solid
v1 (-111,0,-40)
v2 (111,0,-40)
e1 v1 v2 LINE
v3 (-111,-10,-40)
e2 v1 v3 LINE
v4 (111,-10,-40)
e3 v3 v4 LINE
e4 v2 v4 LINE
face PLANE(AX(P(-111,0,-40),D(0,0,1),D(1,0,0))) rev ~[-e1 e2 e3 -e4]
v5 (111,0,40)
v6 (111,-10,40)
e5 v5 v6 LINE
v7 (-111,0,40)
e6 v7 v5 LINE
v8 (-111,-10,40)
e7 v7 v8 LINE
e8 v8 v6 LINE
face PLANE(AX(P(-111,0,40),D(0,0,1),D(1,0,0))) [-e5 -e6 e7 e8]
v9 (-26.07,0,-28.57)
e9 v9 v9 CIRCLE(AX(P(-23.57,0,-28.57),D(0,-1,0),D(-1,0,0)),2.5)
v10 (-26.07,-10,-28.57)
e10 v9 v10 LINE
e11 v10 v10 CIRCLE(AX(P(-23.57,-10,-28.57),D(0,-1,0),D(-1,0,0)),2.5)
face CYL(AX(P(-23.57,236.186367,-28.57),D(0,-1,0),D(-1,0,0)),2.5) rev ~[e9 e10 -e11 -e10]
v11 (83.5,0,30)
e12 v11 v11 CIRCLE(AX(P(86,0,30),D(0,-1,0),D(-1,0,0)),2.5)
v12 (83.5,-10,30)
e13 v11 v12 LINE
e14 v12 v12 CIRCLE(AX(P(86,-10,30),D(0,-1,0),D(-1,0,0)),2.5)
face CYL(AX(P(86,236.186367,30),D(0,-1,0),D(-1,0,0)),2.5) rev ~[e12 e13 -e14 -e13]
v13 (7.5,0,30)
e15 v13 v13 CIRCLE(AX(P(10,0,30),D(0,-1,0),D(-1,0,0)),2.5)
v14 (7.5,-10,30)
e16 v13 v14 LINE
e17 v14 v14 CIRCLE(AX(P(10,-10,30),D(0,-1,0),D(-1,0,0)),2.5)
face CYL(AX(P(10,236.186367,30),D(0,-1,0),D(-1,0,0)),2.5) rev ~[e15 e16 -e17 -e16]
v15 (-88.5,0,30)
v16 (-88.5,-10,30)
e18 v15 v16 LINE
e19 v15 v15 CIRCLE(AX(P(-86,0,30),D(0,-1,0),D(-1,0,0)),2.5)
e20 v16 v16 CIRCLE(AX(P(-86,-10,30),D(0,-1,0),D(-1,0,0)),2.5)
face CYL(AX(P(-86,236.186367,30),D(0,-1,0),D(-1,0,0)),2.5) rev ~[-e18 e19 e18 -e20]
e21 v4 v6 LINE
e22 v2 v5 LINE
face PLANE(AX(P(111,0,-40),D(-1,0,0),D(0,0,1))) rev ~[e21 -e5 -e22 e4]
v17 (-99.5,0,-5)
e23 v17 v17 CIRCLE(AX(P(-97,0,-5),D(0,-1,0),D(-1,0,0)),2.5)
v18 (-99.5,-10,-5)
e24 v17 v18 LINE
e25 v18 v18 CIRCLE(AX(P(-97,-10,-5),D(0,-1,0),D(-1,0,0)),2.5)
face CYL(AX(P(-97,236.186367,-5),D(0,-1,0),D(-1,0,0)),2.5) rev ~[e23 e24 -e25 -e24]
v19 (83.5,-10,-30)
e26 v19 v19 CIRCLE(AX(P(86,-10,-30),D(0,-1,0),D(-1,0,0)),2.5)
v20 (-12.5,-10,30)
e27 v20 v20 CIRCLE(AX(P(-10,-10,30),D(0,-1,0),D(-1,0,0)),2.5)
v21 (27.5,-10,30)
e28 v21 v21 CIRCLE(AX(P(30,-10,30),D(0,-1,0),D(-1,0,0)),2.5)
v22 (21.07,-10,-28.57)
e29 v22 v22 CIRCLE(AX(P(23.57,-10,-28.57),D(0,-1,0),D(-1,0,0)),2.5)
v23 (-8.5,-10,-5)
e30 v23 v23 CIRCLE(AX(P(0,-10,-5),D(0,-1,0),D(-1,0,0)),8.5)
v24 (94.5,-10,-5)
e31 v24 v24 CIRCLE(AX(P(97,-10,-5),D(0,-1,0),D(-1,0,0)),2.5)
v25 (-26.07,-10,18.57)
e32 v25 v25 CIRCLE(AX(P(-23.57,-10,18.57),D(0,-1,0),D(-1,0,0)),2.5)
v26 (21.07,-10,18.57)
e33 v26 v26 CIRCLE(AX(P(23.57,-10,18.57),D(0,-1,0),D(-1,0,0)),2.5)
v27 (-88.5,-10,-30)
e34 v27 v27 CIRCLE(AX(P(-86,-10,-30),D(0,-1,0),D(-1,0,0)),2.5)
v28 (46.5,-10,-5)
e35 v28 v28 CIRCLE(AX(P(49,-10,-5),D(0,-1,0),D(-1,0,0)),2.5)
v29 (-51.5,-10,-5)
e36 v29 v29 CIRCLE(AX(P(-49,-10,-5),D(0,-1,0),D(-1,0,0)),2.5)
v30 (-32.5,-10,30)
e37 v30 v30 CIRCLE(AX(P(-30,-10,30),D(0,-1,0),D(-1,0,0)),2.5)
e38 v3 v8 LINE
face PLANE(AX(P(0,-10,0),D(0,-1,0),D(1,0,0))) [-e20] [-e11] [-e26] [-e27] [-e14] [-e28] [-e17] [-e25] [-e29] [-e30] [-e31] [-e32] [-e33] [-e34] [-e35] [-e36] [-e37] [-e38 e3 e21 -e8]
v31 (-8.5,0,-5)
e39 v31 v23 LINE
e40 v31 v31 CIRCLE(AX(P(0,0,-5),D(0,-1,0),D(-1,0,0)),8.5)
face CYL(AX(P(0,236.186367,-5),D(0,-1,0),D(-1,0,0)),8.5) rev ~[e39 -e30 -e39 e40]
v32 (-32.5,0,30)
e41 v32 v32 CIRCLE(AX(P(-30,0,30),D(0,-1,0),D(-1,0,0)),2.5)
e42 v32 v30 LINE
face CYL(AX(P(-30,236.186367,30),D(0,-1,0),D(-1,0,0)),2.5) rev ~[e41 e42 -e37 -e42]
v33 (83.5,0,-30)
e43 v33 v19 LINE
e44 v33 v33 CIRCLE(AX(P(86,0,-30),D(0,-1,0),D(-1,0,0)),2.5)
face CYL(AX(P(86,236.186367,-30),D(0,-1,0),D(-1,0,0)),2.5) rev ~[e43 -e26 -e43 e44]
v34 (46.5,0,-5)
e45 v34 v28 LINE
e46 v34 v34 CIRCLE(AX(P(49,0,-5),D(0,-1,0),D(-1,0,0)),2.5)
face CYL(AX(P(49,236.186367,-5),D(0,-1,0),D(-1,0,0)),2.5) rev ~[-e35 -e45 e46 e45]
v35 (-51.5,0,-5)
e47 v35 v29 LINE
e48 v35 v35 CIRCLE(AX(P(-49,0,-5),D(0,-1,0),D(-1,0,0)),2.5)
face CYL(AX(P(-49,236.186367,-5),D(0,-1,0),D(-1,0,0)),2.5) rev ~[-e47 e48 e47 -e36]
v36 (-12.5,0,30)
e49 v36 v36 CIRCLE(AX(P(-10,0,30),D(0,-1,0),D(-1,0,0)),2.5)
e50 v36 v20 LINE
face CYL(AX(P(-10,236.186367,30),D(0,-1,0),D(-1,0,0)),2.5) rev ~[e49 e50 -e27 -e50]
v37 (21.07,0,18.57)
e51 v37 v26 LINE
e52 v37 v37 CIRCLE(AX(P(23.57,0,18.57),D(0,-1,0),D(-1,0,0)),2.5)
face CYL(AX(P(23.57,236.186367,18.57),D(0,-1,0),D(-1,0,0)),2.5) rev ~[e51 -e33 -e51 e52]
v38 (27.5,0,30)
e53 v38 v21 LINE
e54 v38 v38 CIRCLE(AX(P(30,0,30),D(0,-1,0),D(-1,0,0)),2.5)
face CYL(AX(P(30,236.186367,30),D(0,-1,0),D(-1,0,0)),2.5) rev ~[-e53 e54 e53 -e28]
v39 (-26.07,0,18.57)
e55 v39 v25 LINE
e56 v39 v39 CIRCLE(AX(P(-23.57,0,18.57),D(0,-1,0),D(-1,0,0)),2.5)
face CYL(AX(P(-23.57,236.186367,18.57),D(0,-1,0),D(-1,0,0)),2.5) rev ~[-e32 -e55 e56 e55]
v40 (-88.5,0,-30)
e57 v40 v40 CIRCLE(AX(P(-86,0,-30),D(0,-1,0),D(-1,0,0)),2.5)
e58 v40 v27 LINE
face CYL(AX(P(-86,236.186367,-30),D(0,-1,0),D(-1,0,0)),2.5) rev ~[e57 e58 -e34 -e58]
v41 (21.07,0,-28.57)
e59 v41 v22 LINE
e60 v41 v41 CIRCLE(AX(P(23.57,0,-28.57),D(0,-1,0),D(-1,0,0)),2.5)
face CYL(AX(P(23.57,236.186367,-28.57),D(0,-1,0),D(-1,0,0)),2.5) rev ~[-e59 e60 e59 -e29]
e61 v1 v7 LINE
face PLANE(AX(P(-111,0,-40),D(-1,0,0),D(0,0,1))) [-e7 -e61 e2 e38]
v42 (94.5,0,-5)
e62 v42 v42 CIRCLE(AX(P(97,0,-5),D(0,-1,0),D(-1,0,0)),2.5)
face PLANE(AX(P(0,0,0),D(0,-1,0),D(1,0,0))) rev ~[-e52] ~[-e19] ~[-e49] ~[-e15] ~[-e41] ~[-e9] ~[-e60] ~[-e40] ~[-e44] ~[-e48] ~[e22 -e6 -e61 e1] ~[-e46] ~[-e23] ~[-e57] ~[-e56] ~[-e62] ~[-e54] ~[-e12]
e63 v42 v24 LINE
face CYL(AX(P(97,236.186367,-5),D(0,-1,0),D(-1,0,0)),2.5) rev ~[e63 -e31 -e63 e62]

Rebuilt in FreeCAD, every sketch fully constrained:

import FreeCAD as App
import Part
import Sketcher
from FreeCAD import Vector

doc = App.newDocument("Part")
params = doc.addObject("Spreadsheet::Sheet", "Params")
for row, (alias, value) in enumerate([
    ("sketch1_width", "222 mm"),
    ("sketch1_height", "80 mm"),
    ("pad1_length", "10 mm"),
    ("sketch2_diameter", "5 mm"),
    ("hole_diameter", "5 mm"),
    ("sketch3_diameter", "17 mm"),
    ("hole2_diameter", "17 mm"),
    ("sketch4_diameter", "5 mm"),
    ("hole3_diameter", "5 mm"),
    ("sketch5_diameter", "5 mm"),
    ("hole4_diameter", "5 mm"),
    ("sketch6_diameter", "5 mm"),
    ("hole5_diameter", "5 mm"),
], start=1):
    params.set(f"A{row}", alias)
    params.set(f"B{row}", "=" + value)
    params.setAlias(f"B{row}", alias)

body = doc.addObject("PartDesign::Body", "Body")

# Sketch on XZ plane
sketch1 = doc.addObject("Sketcher::SketchObject", "Sketch")
body.addObject(sketch1)
sketch1.AttachmentSupport = (doc.XZ_Plane, [""])
sketch1.MapMode = "FlatFace"
sketch1.addGeometry([
    Part.LineSegment(Vector(-111, 40, 0), Vector(-111, -40, 0)),
    Part.LineSegment(Vector(-111, -40, 0), Vector(111, -40, 0)),
    Part.LineSegment(Vector(111, -40, 0), Vector(111, 40, 0)),
    Part.LineSegment(Vector(111, 40, 0), Vector(-111, 40, 0)),
], False)
sketch1.addConstraint([
    Sketcher.Constraint("Coincident", 0, 2, 1, 1),
    Sketcher.Constraint("Coincident", 1, 2, 2, 1),
    Sketcher.Constraint("Coincident", 2, 2, 3, 1),
    Sketcher.Constraint("Coincident", 3, 2, 0, 1),
    Sketcher.Constraint("Vertical", 0),
    Sketcher.Constraint("Horizontal", 1),
    Sketcher.Constraint("Vertical", 2),
    Sketcher.Constraint("Horizontal", 3),
    Sketcher.Constraint("Symmetric", 0, 2, 2, 2, -1, 1),
    Sketcher.Constraint("DistanceX", 1, 1, 1, 2, 222.0),
    Sketcher.Constraint("DistanceY", 0, 2, 0, 1, 80.0),
])
sketch1.setExpression("Constraints[9]", "Params.sketch1_width")
sketch1.setExpression("Constraints[10]", "Params.sketch1_height")
pad1 = doc.addObject("PartDesign::Pad", "Pad")
body.addObject(pad1)
pad1.Profile = sketch1
pad1.setExpression("Length", "Params.pad1_length")

# Sketch on XZ plane
sketch2 = doc.addObject("Sketcher::SketchObject", "Sketch001")
body.addObject(sketch2)
sketch2.AttachmentSupport = (doc.XZ_Plane, [""])
sketch2.MapMode = "FlatFace"
sketch2.addGeometry([
    Part.Circle(Vector(97, -5, 0), Vector(0, 0, 1), 2.5),
    Part.Circle(Vector(49, -5, 0), Vector(0, 0, 1), 2.5),
    Part.Circle(Vector(-49, -5, 0), Vector(0, 0, 1), 2.5),
    Part.Circle(Vector(-97, -5, 0), Vector(0, 0, 1), 2.5),
], False)
sketch2.addConstraint([
    Sketcher.Constraint("Equal", 0, 1),
    Sketcher.Constraint("Equal", 1, 2),
    Sketcher.Constraint("Equal", 2, 3),
    Sketcher.Constraint("Symmetric", 1, 3, 2, 3, -2),
    Sketcher.Constraint("Symmetric", 0, 3, 3, 3, -2),
    Sketcher.Constraint("Horizontal", 0, 3, 1, 3),
    Sketcher.Constraint("Diameter", 0, 5.0),
    Sketcher.Constraint("DistanceX", -1, 1, 0, 3, 97.0),
    Sketcher.Constraint("DistanceY", 0, 3, -1, 1, 5.0),
    Sketcher.Constraint("DistanceX", -1, 1, 1, 3, 49.0),
])
sketch2.setExpression("Constraints[6]", "Params.sketch2_diameter")
doc.recompute()
hole = doc.addObject("PartDesign::Hole", "Hole")
body.addObject(hole)
hole.Profile = sketch2
hole.ThreadType = "None"
hole.setExpression("Diameter", "Params.hole_diameter")
hole.DepthType = "ThroughAll"
hole.Reversed = True

# Sketch on XZ plane
sketch3 = doc.addObject("Sketcher::SketchObject", "Sketch002")
body.addObject(sketch3)
sketch3.AttachmentSupport = (doc.XZ_Plane, [""])
sketch3.MapMode = "FlatFace"
sketch3.addGeometry(Part.Circle(Vector(0, -5, 0), Vector(0, 0, 1), 8), False)
sketch3.addConstraint([
    Sketcher.Constraint("PointOnObject", 0, 3, -2),
    Sketcher.Constraint("Diameter", 0, 17.0),
    Sketcher.Constraint("DistanceY", 0, 3, -1, 1, 5.0),
])
sketch3.setExpression("Constraints[1]", "Params.sketch3_diameter")
doc.recompute()
hole2 = doc.addObject("PartDesign::Hole", "Hole001")
body.addObject(hole2)
hole2.Profile = sketch3
hole2.ThreadType = "None"
hole2.setExpression("Diameter", "Params.hole2_diameter")
hole2.DepthType = "ThroughAll"
hole2.Reversed = True

# Sketch on XZ plane
sketch4 = doc.addObject("Sketcher::SketchObject", "Sketch003")
body.addObject(sketch4)
sketch4.AttachmentSupport = (doc.XZ_Plane, [""])
sketch4.MapMode = "FlatFace"
sketch4.addGeometry([
    Part.Circle(Vector(-86, 30, 0), Vector(0, 0, 1), 2.5),
    Part.Circle(Vector(-86, -30, 0), Vector(0, 0, 1), 2.5),
    Part.Circle(Vector(86, -30, 0), Vector(0, 0, 1), 2.5),
    Part.Circle(Vector(86, 30, 0), Vector(0, 0, 1), 2.5),
], False)
sketch4.addConstraint([
    Sketcher.Constraint("Equal", 0, 1),
    Sketcher.Constraint("Equal", 1, 2),
    Sketcher.Constraint("Equal", 2, 3),
    Sketcher.Constraint("Symmetric", 0, 3, 2, 3, -1, 1),
    Sketcher.Constraint("Symmetric", 1, 3, 3, 3, -1, 1),
    Sketcher.Constraint("Symmetric", 1, 3, 2, 3, -2),
    Sketcher.Constraint("Diameter", 0, 5.0),
    Sketcher.Constraint("DistanceX", 0, 3, -1, 1, 86.0),
    Sketcher.Constraint("DistanceY", -1, 1, 0, 3, 30.0),
])
sketch4.setExpression("Constraints[6]", "Params.sketch4_diameter")
doc.recompute()
hole3 = doc.addObject("PartDesign::Hole", "Hole002")
body.addObject(hole3)
hole3.Profile = sketch4
hole3.ThreadType = "None"
hole3.setExpression("Diameter", "Params.hole3_diameter")
hole3.DepthType = "ThroughAll"
hole3.Reversed = True

# Sketch on XZ plane
sketch5 = doc.addObject("Sketcher::SketchObject", "Sketch004")
body.addObject(sketch5)
sketch5.AttachmentSupport = (doc.XZ_Plane, [""])
sketch5.MapMode = "FlatFace"
sketch5.addGeometry([
    Part.Circle(Vector(-30, 30, 0), Vector(0, 0, 1), 2.5),
    Part.Circle(Vector(-10, 30, 0), Vector(0, 0, 1), 2.5),
    Part.Circle(Vector(10, 30, 0), Vector(0, 0, 1), 2.5),
    Part.Circle(Vector(30, 30, 0), Vector(0, 0, 1), 2.5),
], False)
sketch5.addConstraint([
    Sketcher.Constraint("Equal", 0, 1),
    Sketcher.Constraint("Equal", 1, 2),
    Sketcher.Constraint("Equal", 2, 3),
    Sketcher.Constraint("Symmetric", 1, 3, 2, 3, -2),
    Sketcher.Constraint("Symmetric", 0, 3, 3, 3, -2),
    Sketcher.Constraint("Horizontal", 0, 3, 1, 3),
    Sketcher.Constraint("Diameter", 0, 5.0),
    Sketcher.Constraint("DistanceX", 0, 3, -1, 1, 30.0),
    Sketcher.Constraint("DistanceY", -1, 1, 0, 3, 30.0),
    Sketcher.Constraint("DistanceX", 1, 3, -1, 1, 10.0),
])
sketch5.setExpression("Constraints[6]", "Params.sketch5_diameter")
doc.recompute()
hole4 = doc.addObject("PartDesign::Hole", "Hole003")
body.addObject(hole4)
hole4.Profile = sketch5
hole4.ThreadType = "None"
hole4.setExpression("Diameter", "Params.hole4_diameter")
hole4.DepthType = "ThroughAll"
hole4.Reversed = True

# Sketch on XZ plane
sketch6 = doc.addObject("Sketcher::SketchObject", "Sketch005")
body.addObject(sketch6)
sketch6.AttachmentSupport = (doc.XZ_Plane, [""])
sketch6.MapMode = "FlatFace"
sketch6.addGeometry([
    Part.Circle(Vector(-23.6, 18.6, 0), Vector(0, 0, 1), 2.5),
    Part.Circle(Vector(23.6, 18.6, 0), Vector(0, 0, 1), 2.5),
    Part.Circle(Vector(23.6, -28.6, 0), Vector(0, 0, 1), 2.5),
    Part.Circle(Vector(-23.6, -28.6, 0), Vector(0, 0, 1), 2.5),
], False)
sketch6.addConstraint([
    Sketcher.Constraint("Equal", 0, 1),
    Sketcher.Constraint("Equal", 1, 2),
    Sketcher.Constraint("Equal", 2, 3),
    Sketcher.Constraint("Symmetric", 0, 3, 1, 3, -2),
    Sketcher.Constraint("Symmetric", 2, 3, 3, 3, -2),
    Sketcher.Constraint("Vertical", 1, 3, 2, 3),
    Sketcher.Constraint("Diameter", 0, 5.0),
    Sketcher.Constraint("DistanceX", 0, 3, -1, 1, 23.57),
    Sketcher.Constraint("DistanceY", -1, 1, 0, 3, 18.57),
    Sketcher.Constraint("DistanceY", 2, 3, -1, 1, 28.57),
])
sketch6.setExpression("Constraints[6]", "Params.sketch6_diameter")
doc.recompute()
hole5 = doc.addObject("PartDesign::Hole", "Hole004")
body.addObject(hole5)
hole5.Profile = sketch6
hole5.ThreadType = "None"
hole5.setExpression("Diameter", "Params.hole5_diameter")
hole5.DepthType = "ThroughAll"
hole5.Reversed = True

doc.recompute()
